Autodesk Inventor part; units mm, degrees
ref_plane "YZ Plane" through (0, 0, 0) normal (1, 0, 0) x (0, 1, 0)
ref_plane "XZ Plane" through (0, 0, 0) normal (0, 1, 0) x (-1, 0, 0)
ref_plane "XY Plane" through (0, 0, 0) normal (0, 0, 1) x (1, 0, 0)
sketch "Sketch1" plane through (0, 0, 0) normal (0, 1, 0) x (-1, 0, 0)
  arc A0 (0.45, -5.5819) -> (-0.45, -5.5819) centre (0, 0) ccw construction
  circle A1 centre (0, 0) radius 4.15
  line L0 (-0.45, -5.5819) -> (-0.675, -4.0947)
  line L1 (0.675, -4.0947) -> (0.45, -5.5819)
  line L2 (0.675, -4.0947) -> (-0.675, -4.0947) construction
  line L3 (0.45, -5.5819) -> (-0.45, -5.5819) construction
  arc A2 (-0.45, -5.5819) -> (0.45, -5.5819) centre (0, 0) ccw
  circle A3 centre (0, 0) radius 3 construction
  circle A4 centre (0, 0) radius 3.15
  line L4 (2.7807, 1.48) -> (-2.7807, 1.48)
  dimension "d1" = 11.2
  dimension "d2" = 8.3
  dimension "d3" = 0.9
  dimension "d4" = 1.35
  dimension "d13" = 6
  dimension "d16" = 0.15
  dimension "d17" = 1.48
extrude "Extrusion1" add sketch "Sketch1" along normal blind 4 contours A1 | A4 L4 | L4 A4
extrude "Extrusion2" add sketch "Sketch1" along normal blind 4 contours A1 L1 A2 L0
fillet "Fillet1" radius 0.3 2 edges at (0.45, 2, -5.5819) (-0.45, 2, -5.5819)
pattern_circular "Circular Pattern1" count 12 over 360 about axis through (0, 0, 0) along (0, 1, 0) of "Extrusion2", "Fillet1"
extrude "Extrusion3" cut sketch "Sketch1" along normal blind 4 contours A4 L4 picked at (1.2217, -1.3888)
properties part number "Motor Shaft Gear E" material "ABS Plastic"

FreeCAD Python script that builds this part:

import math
import FreeCAD as App
import Part
import Sketcher
from FreeCAD import Vector
Q = App.Units.Quantity


def edges_at(feature, points):
    """Names of the edges that pass closest to the given points."""
    edges = feature.Shape.Edges
    near = lambda p: min(range(len(edges)), key=lambda i: edges[i].distToShape(Part.Vertex(*p))[0])
    return sorted({f"Edge{near(p) + 1}" for p in points})

doc = App.newDocument("Part")
body = doc.addObject("PartDesign::Body", "Body")

sketch1 = doc.addObject("Sketcher::SketchObject", "Sketch")
body.addObject(sketch1)
sketch1.AttachmentSupport = (doc.XZ_Plane, [""])
sketch1.MapMode = "FlatFace"
sketch1.addGeometry(Part.Circle(Vector(0, 0, 0), Vector(0, 0, 1), 4.2), False)
sketch1.addConstraint([
    Sketcher.Constraint("Coincident", 0, 3, -1, 1),
    Sketcher.Constraint("Diameter", 0, Q("8.3 mm")),
])
pad1 = doc.addObject("PartDesign::Pad", "Pad")
body.addObject(pad1)
pad1.Profile = sketch1
pad1.Length = 4
pad1.Reversed = True

sketch2 = doc.addObject("Sketcher::SketchObject", "Sketch001")
body.addObject(sketch2)
sketch2.AttachmentSupport = (doc.XZ_Plane, [""])
sketch2.MapMode = "FlatFace"
sketch2.addGeometry([
    Part.ArcOfCircle(Part.Circle(Vector(0, 0, 0), Vector(0, 0, 1), 4.2), math.radians(-99.36), math.radians(-80.64)),
    Part.LineSegment(Vector(0.7, -4.1, 0), Vector(0.5, -5.6, 0)),
    Part.ArcOfCircle(Part.Circle(Vector(0, 0, 0), Vector(0, 0, 1), 5.6), math.radians(-94.61), math.radians(-85.39)),
    Part.LineSegment(Vector(-0.5, -5.6, 0), Vector(-0.7, -4.1, 0)),
], False)
sketch2.addConstraint([
    Sketcher.Constraint("Coincident", 0, 2, 1, 1),
    Sketcher.Constraint("Coincident", 1, 2, 2, 2),
    Sketcher.Constraint("Coincident", 2, 1, 3, 1),
    Sketcher.Constraint("Coincident", 3, 2, 0, 1),
    Sketcher.Constraint("Coincident", 0, 3, -1, 1),
    Sketcher.Constraint("Coincident", 2, 3, -1, 1),
    Sketcher.Constraint("Horizontal", 1, 2, 2, 1),
    Sketcher.Constraint("Horizontal", 0, 2, 3, 2),
    Sketcher.Constraint("Radius", 2, Q("5.6 mm")),
    Sketcher.Constraint("Radius", 0, Q("4.15 mm")),
    Sketcher.Constraint("DistanceX", 2, 1, 1, 2, Q("0.9 mm")),
    Sketcher.Constraint("DistanceX", 3, 2, 0, 2, Q("1.35 mm")),
])
pad2 = doc.addObject("PartDesign::Pad", "Pad001")
body.addObject(pad2)
pad2.Profile = sketch2
pad2.Length = 4
pad2.Reversed = True
doc.recompute()

fillet = doc.addObject("PartDesign::Fillet", "Fillet")
body.addObject(fillet)
fillet.Base = (pad2, edges_at(pad2, [(0.45, 2, -5.582), (-0.45, 2, -5.582)]))
fillet.Radius = 0.3
doc.recompute()

polarpattern = doc.addObject("PartDesign::PolarPattern", "PolarPattern")
body.addObject(polarpattern)
polarpattern.Originals = [pad2, fillet]
polarpattern.Axis = (doc.Y_Axis, [""])
polarpattern.Angle = 360
polarpattern.Occurrences = 12
body.Tip = polarpattern

sketch3 = doc.addObject("Sketcher::SketchObject", "Sketch002")
body.addObject(sketch3)
sketch3.AttachmentSupport = (doc.XZ_Plane, [""])
sketch3.MapMode = "FlatFace"
sketch3.addGeometry([
    Part.ArcOfCircle(Part.Circle(Vector(0, 0, 0), Vector(0, 0, 1), 3.1), math.radians(152), math.radians(388)),
    Part.LineSegment(Vector(2.8, 1.5, 0), Vector(-2.8, 1.5, 0)),
], False)
sketch3.addConstraint([
    Sketcher.Constraint("Coincident", 0, 1, 1, 2),
    Sketcher.Constraint("Coincident", 1, 1, 0, 2),
    Sketcher.Constraint("Horizontal", 1),
    Sketcher.Constraint("Coincident", 0, 3, -1, 1),
    Sketcher.Constraint("DistanceY", -1, 1, 0, 1, Q("1.48 mm")),
    Sketcher.Constraint("Radius", 0, Q("3.15 mm")),
])
pocket1 = doc.addObject("PartDesign::Pocket", "Pocket")
body.addObject(pocket1)
pocket1.Profile = sketch3
pocket1.Length = 4

doc.recompute()
